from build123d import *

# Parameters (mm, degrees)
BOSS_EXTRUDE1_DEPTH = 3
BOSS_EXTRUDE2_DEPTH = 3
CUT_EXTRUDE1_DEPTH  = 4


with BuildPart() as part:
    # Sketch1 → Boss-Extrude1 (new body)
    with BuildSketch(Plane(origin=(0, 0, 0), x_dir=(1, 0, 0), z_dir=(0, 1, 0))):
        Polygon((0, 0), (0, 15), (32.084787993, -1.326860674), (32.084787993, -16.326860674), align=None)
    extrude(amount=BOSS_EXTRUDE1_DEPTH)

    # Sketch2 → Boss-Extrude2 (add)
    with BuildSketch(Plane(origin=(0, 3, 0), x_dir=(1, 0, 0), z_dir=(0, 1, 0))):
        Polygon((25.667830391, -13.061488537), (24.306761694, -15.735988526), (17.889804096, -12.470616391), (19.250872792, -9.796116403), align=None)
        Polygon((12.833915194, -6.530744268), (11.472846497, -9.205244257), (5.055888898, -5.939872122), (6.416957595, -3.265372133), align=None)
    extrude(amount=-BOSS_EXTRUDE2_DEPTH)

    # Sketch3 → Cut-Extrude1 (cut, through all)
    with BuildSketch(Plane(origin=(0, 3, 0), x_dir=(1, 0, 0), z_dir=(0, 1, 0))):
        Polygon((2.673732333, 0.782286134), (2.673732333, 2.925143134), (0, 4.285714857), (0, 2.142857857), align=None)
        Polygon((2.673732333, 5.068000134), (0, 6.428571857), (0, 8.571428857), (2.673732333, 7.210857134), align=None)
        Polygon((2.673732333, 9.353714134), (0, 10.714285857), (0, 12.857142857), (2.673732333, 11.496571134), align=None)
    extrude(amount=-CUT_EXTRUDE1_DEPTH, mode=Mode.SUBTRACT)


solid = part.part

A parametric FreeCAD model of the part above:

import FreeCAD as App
import Part
import Sketcher
from FreeCAD import Vector
Q = App.Units.Quantity

doc = App.newDocument("Part")
body = doc.addObject("PartDesign::Body", "Body")

# Sketch on XZ plane
sketch1 = body.newObject("Sketcher::SketchObject", "Sketch")
sketch1.AttachmentSupport = (doc.getObject("XZ_Plane"), [""])
sketch1.MapMode = "FlatFace"
sketch1.addGeometry(Part.LineSegment(Vector(0, -15, 0), Vector(0, 0, 0)), False)
sketch1.addGeometry(Part.LineSegment(Vector(0, 0, 0), Vector(32, 16, 0)), False)
sketch1.addGeometry(Part.LineSegment(Vector(32, 16, 0), Vector(32, 1, 0)), False)
sketch1.addGeometry(Part.LineSegment(Vector(32, 1, 0), Vector(0, -15, 0)), False)
sketch1.addConstraint(Sketcher.Constraint("Coincident", 0, 2, 1, 1))
sketch1.addConstraint(Sketcher.Constraint("Coincident", 1, 2, 2, 1))
sketch1.addConstraint(Sketcher.Constraint("Coincident", 2, 2, 3, 1))
sketch1.addConstraint(Sketcher.Constraint("Coincident", 3, 2, 0, 1))
sketch1.addConstraint(Sketcher.Constraint("Vertical", 0))
sketch1.addConstraint(Sketcher.Constraint("Vertical", 2))
sketch1.addConstraint(Sketcher.Constraint("Coincident", 0, 2, -1, 1))
sketch1.addConstraint(Sketcher.Constraint("Parallel", 1, 3))
sketch1.addConstraint(Sketcher.Constraint("DistanceY", 0, 1, 0, 2, Q("15 mm")))
sketch1.addConstraint(Sketcher.Constraint("Distance", 1, Q("36 mm")))
sketch1.addConstraint(Sketcher.Constraint("Angle", 1, Q("26.97 deg")))
pad1 = body.newObject("PartDesign::Pad", "Pad")
pad1.Profile = sketch1
pad1.Length = 3
pad1.Reversed = True

# Sketch on XZ plane
sketch2 = body.newObject("Sketcher::SketchObject", "Sketch001")
sketch2.AttachmentSupport = (doc.getObject("XZ_Plane"), [""])
sketch2.MapMode = "FlatFace"
sketch2.AttachmentOffset = App.Placement(Vector(0, 0, -3), App.Rotation())
sketch2.addGeometry(Part.LineSegment(Vector(24.3, 15.7, 0), Vector(25.7, 13.1, 0)), False)
sketch2.addGeometry(Part.LineSegment(Vector(25.7, 13.1, 0), Vector(19.3, 9.8, 0)), False)
sketch2.addGeometry(Part.LineSegment(Vector(19.3, 9.8, 0), Vector(17.9, 12.5, 0)), False)
sketch2.addGeometry(Part.LineSegment(Vector(17.9, 12.5, 0), Vector(24.3, 15.7, 0)), False)
sketch2.addGeometry(Part.LineSegment(Vector(11.5, 9.2, 0), Vector(12.8, 6.5, 0)), False)
sketch2.addGeometry(Part.LineSegment(Vector(12.8, 6.5, 0), Vector(6.4, 3.3, 0)), False)
sketch2.addGeometry(Part.LineSegment(Vector(6.4, 3.3, 0), Vector(5.1, 5.9, 0)), False)
sketch2.addGeometry(Part.LineSegment(Vector(5.1, 5.9, 0), Vector(11.5, 9.2, 0)), False)
sketch2.addConstraint(Sketcher.Constraint("Coincident", 0, 2, 1, 1))
sketch2.addConstraint(Sketcher.Constraint("Coincident", 1, 2, 2, 1))
sketch2.addConstraint(Sketcher.Constraint("Coincident", 2, 2, 3, 1))
sketch2.addConstraint(Sketcher.Constraint("Coincident", 3, 2, 0, 1))
sketch2.addConstraint(Sketcher.Constraint("Coincident", 4, 2, 5, 1))
sketch2.addConstraint(Sketcher.Constraint("Coincident", 5, 2, 6, 1))
sketch2.addConstraint(Sketcher.Constraint("Coincident", 6, 2, 7, 1))
sketch2.addConstraint(Sketcher.Constraint("Coincident", 7, 2, 4, 1))
sketch2.addConstraint(Sketcher.Constraint("Parallel", 0, 2))
sketch2.addConstraint(Sketcher.Constraint("Parallel", 1, 3))
sketch2.addConstraint(Sketcher.Constraint("Parallel", 2, 4))
sketch2.addConstraint(Sketcher.Constraint("Parallel", 3, 5))
sketch2.addConstraint(Sketcher.Constraint("Parallel", 4, 6))
sketch2.addConstraint(Sketcher.Constraint("Parallel", 5, 7))
sketch2.addConstraint(Sketcher.Constraint("Equal", 2, 4))
sketch2.addConstraint(Sketcher.Constraint("Equal", 3, 5))
sketch2.addConstraint(Sketcher.Constraint("Distance", 1, Q("7.2 mm")))
sketch2.addConstraint(Sketcher.Constraint("Angle", 1, Q("-153.03 deg")))
sketch2.addConstraint(Sketcher.Constraint("DistanceY", 1, 2, 2, 2, Q("2.6745 mm")))
sketch2.addConstraint(Sketcher.Constraint("Distance", 0, Q("3.00091 mm")))
sketch2.addConstraint(Sketcher.Constraint("DistanceX", -1, 1, 0, 2, Q("25.66783 mm")))
sketch2.addConstraint(Sketcher.Constraint("DistanceY", -1, 1, 0, 2, Q("13.061489 mm")))
sketch2.addConstraint(Sketcher.Constraint("DistanceX", -1, 1, 6, 2, Q("5.055889 mm")))
sketch2.addConstraint(Sketcher.Constraint("DistanceY", -1, 1, 4, 2, Q("6.530744 mm")))
pad2 = body.newObject("PartDesign::Pad", "Pad001")
pad2.Profile = sketch2
pad2.Length = 3

# Sketch on XZ plane
sketch3 = body.newObject("Sketcher::SketchObject", "Sketch002")
sketch3.AttachmentSupport = (doc.getObject("XZ_Plane"), [""])
sketch3.MapMode = "FlatFace"
sketch3.AttachmentOffset = App.Placement(Vector(0, 0, -3), App.Rotation())
sketch3.addGeometry(Part.LineSegment(Vector(2.7, -0.8, 0), Vector(2.7, -2.9, 0)), False)
sketch3.addGeometry(Part.LineSegment(Vector(2.7, -2.9, 0), Vector(0, -4.3, 0)), False)
sketch3.addGeometry(Part.LineSegment(Vector(0, -4.3, 0), Vector(0, -2.1, 0)), False)
sketch3.addGeometry(Part.LineSegment(Vector(0, -2.1, 0), Vector(2.7, -0.8, 0)), False)
sketch3.addGeometry(Part.LineSegment(Vector(0, -6.4, 0), Vector(2.7, -5.1, 0)), False)
sketch3.addGeometry(Part.LineSegment(Vector(2.7, -5.1, 0), Vector(2.7, -7.2, 0)), False)
sketch3.addGeometry(Part.LineSegment(Vector(2.7, -7.2, 0), Vector(0, -8.6, 0)), False)
sketch3.addGeometry(Part.LineSegment(Vector(0, -8.6, 0), Vector(0, -6.4, 0)), False)
sketch3.addGeometry(Part.LineSegment(Vector(0, -10.7, 0), Vector(2.7, -9.4, 0)), False)
sketch3.addGeometry(Part.LineSegment(Vector(2.7, -9.4, 0), Vector(2.7, -11.5, 0)), False)
sketch3.addGeometry(Part.LineSegment(Vector(2.7, -11.5, 0), Vector(0, -12.9, 0)), False)
sketch3.addGeometry(Part.LineSegment(Vector(0, -12.9, 0), Vector(0, -10.7, 0)), False)
sketch3.addConstraint(Sketcher.Constraint("Coincident", 0, 2, 1, 1))
sketch3.addConstraint(Sketcher.Constraint("Coincident", 1, 2, 2, 1))
sketch3.addConstraint(Sketcher.Constraint("Coincident", 2, 2, 3, 1))
sketch3.addConstraint(Sketcher.Constraint("Coincident", 3, 2, 0, 1))
sketch3.addConstraint(Sketcher.Constraint("Coincident", 4, 2, 5, 1))
sketch3.addConstraint(Sketcher.Constraint("Coincident", 5, 2, 6, 1))
sketch3.addConstraint(Sketcher.Constraint("Coincident", 6, 2, 7, 1))
sketch3.addConstraint(Sketcher.Constraint("Coincident", 7, 2, 4, 1))
sketch3.addConstraint(Sketcher.Constraint("Coincident", 8, 2, 9, 1))
sketch3.addConstraint(Sketcher.Constraint("Coincident", 9, 2, 10, 1))
sketch3.addConstraint(Sketcher.Constraint("Coincident", 10, 2, 11, 1))
sketch3.addConstraint(Sketcher.Constraint("Coincident", 11, 2, 8, 1))
sketch3.addConstraint(Sketcher.Constraint("Vertical", 0))
sketch3.addConstraint(Sketcher.Constraint("Vertical", 2))
sketch3.addConstraint(Sketcher.Constraint("Vertical", 5))
sketch3.addConstraint(Sketcher.Constraint("Vertical", 7))
sketch3.addConstraint(Sketcher.Constraint("Vertical", 9))
sketch3.addConstraint(Sketcher.Constraint("Vertical", 11))
sketch3.addConstraint(Sketcher.Constraint("PointOnObject", 1, 2, -2))
sketch3.addConstraint(Sketcher.Constraint("PointOnObject", 6, 2, -2))
sketch3.addConstraint(Sketcher.Constraint("PointOnObject", 10, 2, -2))
sketch3.addConstraint(Sketcher.Constraint("Parallel", 1, 3))
sketch3.addConstraint(Sketcher.Constraint("Parallel", 3, 4))
sketch3.addConstraint(Sketcher.Constraint("Parallel", 4, 6))
sketch3.addConstraint(Sketcher.Constraint("Parallel", 6, 8))
sketch3.addConstraint(Sketcher.Constraint("Parallel", 8, 10))
sketch3.addConstraint(Sketcher.Constraint("Vertical", 3, 2, 4, 2))
sketch3.addConstraint(Sketcher.Constraint("Vertical", 5, 2, 8, 2))
sketch3.addConstraint(Sketcher.Constraint("Equal", 2, 5))
sketch3.addConstraint(Sketcher.Constraint("Equal", 7, 9))
sketch3.addConstraint(Sketcher.Constraint("Distance", 1, Q("3 mm")))
sketch3.addConstraint(Sketcher.Constraint("Angle", 1, Q("-153.03 deg")))
sketch3.addConstraint(Sketcher.Constraint("DistanceY", 4, 2, -1, 1, Q("5.068 mm")))
sketch3.addConstraint(Sketcher.Constraint("DistanceY", 5, 2, 2, 2, Q("5.067999 mm")))
sketch3.addConstraint(Sketcher.Constraint("DistanceY", 8, 2, 1, 2, Q("5.067999 mm")))
sketch3.addConstraint(Sketcher.Constraint("DistanceY", 9, 2, 7, 2, Q("5.067999 mm")))
pocket1 = body.newObject("PartDesign::Pocket", "Pocket")
pocket1.Profile = sketch3
pocket1.Type = "ThroughAll"
pocket1.Reversed = True

doc.recompute()
